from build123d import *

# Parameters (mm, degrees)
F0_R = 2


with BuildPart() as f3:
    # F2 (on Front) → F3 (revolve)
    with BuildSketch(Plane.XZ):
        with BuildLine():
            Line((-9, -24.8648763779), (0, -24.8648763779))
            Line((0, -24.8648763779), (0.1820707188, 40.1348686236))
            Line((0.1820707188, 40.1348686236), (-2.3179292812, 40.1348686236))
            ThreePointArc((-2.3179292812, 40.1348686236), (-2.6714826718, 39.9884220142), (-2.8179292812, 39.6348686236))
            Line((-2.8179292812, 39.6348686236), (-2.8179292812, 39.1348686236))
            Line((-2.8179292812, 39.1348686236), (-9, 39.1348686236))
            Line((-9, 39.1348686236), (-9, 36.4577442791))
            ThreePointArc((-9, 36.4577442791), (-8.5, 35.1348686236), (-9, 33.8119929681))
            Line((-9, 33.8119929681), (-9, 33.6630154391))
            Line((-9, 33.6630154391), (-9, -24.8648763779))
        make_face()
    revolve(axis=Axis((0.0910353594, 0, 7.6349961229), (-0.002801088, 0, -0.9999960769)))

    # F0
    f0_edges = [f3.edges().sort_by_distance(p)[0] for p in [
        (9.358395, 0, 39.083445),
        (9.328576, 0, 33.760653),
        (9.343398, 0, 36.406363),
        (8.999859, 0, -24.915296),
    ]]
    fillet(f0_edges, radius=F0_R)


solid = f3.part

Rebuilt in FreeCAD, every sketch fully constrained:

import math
import FreeCAD as App
import Part
import Sketcher
Q = App.Units.Quantity


def edges_at(feature, points):
    """Names of the edges that pass closest to the given points."""
    edges = feature.Shape.Edges
    near = lambda p: min(range(len(edges)), key=lambda i: edges[i].distToShape(Part.Vertex(*p))[0])
    return sorted({f"Edge{near(p) + 1}" for p in points})

doc = App.newDocument("Part")
body = doc.addObject("PartDesign::Body", "Body")

# Sketch on XZ plane
sketch1 = body.newObject("Sketcher::SketchObject", "Sketch")
sketch1.AttachmentSupport = (doc.getObject("XZ_Plane"), [""])
sketch1.MapMode = "FlatFace"
sketch1.addGeometry(Part.LineSegment(App.Vector(-9, -24.9, 0), App.Vector(0, -24.9, 0)), False)
sketch1.addGeometry(Part.LineSegment(App.Vector(0, -24.9, 0), App.Vector(0.2, 40.1, 0)), False)
sketch1.addGeometry(Part.LineSegment(App.Vector(0.2, 40.1, 0), App.Vector(-2.3, 40.1, 0)), False)
sketch1.addGeometry(Part.ArcOfCircle(Part.Circle(App.Vector(-2.3, 39.6, 0), App.Vector(0, 0, 1), 0.5), math.radians(90), math.radians(180)), False)
sketch1.addGeometry(Part.LineSegment(App.Vector(-2.8, 39.6, 0), App.Vector(-2.8, 39.1, 0)), False)
sketch1.addGeometry(Part.LineSegment(App.Vector(-2.8, 39.1, 0), App.Vector(-9, 39.1, 0)), False)
sketch1.addGeometry(Part.LineSegment(App.Vector(-9, 39.1, 0), App.Vector(-9, 36.5, 0)), False)
sketch1.addGeometry(Part.ArcOfCircle(Part.Circle(App.Vector(-10.5, 35.1, 0), App.Vector(0, 0, 1), 2), math.radians(-41), math.radians(41)), False)
sketch1.addGeometry(Part.LineSegment(App.Vector(-9, 33.8, 0), App.Vector(-9, -24.9, 0)), False)
sketch1.addGeometry(Part.LineSegment(App.Vector(0.2, 40.1, 0), App.Vector(0, -24.9, 0)), True)  # axis
sketch1.addConstraint(Sketcher.Constraint("Coincident", 0, 2, 1, 1))
sketch1.addConstraint(Sketcher.Constraint("Coincident", 1, 2, 2, 1))
sketch1.addConstraint(Sketcher.Constraint("Tangent", 2, 2, 3, 1))
sketch1.addConstraint(Sketcher.Constraint("Tangent", 3, 2, 4, 1))
sketch1.addConstraint(Sketcher.Constraint("Coincident", 4, 2, 5, 1))
sketch1.addConstraint(Sketcher.Constraint("Coincident", 5, 2, 6, 1))
sketch1.addConstraint(Sketcher.Constraint("Coincident", 6, 2, 7, 2))
sketch1.addConstraint(Sketcher.Constraint("Coincident", 7, 1, 8, 1))
sketch1.addConstraint(Sketcher.Constraint("Coincident", 8, 2, 0, 1))
sketch1.addConstraint(Sketcher.Constraint("Horizontal", 0))
sketch1.addConstraint(Sketcher.Constraint("Horizontal", 2))
sketch1.addConstraint(Sketcher.Constraint("Vertical", 4))
sketch1.addConstraint(Sketcher.Constraint("Horizontal", 5))
sketch1.addConstraint(Sketcher.Constraint("Vertical", 6))
sketch1.addConstraint(Sketcher.Constraint("Vertical", 8))
sketch1.addConstraint(Sketcher.Constraint("Coincident", 9, 1, 1, 2))
sketch1.addConstraint(Sketcher.Constraint("PointOnObject", 0, 2, -2))
sketch1.addConstraint(Sketcher.Constraint("Parallel", 1, 9))
sketch1.addConstraint(Sketcher.Constraint("Vertical", 6, 2, 7, 1))
sketch1.addConstraint(Sketcher.Constraint("Radius", 7, Q("2 mm")))
sketch1.addConstraint(Sketcher.Constraint("Radius", 3, Q("0.5 mm")))
sketch1.addConstraint(Sketcher.Constraint("DistanceX", 0, 1, 0, 2, Q("9 mm")))
sketch1.addConstraint(Sketcher.Constraint("Distance", 1, Q("65 mm")))
sketch1.addConstraint(Sketcher.Constraint("DistanceX", 2, 2, 2, 1, Q("2.5 mm")))
sketch1.addConstraint(Sketcher.Constraint("DistanceY", 4, 2, 4, 1, Q("0.5 mm")))
sketch1.addConstraint(Sketcher.Constraint("DistanceY", 7, 3, 1, 2, Q("5 mm")))
sketch1.addConstraint(Sketcher.Constraint("DistanceX", 7, 3, -1, 1, Q("10.5 mm")))
sketch1.addConstraint(Sketcher.Constraint("DistanceX", 5, 2, 5, 1, Q("6.182071 mm")))
sketch1.addConstraint(Sketcher.Constraint("Distance", 9, Q("65.02521 mm")))
sketch1.addConstraint(Sketcher.Constraint("DistanceY", -1, 1, 3, 3, Q("39.634869 mm")))
revolution = body.newObject("PartDesign::Revolution", "Revolution")
revolution.Profile = sketch1
revolution.ReferenceAxis = (sketch1, ["Axis0"])
revolution.Angle = 360
doc.recompute()

fillet = body.newObject("PartDesign::Fillet", "Fillet")
fillet.Base = (revolution, edges_at(revolution, [
    (9.358, 0, 39.083),
    (9.329, 0, 33.761),
    (9.343, 0, 36.406),
    (9, 0, -24.915),
]))
fillet.Radius = 2

doc.recompute()
